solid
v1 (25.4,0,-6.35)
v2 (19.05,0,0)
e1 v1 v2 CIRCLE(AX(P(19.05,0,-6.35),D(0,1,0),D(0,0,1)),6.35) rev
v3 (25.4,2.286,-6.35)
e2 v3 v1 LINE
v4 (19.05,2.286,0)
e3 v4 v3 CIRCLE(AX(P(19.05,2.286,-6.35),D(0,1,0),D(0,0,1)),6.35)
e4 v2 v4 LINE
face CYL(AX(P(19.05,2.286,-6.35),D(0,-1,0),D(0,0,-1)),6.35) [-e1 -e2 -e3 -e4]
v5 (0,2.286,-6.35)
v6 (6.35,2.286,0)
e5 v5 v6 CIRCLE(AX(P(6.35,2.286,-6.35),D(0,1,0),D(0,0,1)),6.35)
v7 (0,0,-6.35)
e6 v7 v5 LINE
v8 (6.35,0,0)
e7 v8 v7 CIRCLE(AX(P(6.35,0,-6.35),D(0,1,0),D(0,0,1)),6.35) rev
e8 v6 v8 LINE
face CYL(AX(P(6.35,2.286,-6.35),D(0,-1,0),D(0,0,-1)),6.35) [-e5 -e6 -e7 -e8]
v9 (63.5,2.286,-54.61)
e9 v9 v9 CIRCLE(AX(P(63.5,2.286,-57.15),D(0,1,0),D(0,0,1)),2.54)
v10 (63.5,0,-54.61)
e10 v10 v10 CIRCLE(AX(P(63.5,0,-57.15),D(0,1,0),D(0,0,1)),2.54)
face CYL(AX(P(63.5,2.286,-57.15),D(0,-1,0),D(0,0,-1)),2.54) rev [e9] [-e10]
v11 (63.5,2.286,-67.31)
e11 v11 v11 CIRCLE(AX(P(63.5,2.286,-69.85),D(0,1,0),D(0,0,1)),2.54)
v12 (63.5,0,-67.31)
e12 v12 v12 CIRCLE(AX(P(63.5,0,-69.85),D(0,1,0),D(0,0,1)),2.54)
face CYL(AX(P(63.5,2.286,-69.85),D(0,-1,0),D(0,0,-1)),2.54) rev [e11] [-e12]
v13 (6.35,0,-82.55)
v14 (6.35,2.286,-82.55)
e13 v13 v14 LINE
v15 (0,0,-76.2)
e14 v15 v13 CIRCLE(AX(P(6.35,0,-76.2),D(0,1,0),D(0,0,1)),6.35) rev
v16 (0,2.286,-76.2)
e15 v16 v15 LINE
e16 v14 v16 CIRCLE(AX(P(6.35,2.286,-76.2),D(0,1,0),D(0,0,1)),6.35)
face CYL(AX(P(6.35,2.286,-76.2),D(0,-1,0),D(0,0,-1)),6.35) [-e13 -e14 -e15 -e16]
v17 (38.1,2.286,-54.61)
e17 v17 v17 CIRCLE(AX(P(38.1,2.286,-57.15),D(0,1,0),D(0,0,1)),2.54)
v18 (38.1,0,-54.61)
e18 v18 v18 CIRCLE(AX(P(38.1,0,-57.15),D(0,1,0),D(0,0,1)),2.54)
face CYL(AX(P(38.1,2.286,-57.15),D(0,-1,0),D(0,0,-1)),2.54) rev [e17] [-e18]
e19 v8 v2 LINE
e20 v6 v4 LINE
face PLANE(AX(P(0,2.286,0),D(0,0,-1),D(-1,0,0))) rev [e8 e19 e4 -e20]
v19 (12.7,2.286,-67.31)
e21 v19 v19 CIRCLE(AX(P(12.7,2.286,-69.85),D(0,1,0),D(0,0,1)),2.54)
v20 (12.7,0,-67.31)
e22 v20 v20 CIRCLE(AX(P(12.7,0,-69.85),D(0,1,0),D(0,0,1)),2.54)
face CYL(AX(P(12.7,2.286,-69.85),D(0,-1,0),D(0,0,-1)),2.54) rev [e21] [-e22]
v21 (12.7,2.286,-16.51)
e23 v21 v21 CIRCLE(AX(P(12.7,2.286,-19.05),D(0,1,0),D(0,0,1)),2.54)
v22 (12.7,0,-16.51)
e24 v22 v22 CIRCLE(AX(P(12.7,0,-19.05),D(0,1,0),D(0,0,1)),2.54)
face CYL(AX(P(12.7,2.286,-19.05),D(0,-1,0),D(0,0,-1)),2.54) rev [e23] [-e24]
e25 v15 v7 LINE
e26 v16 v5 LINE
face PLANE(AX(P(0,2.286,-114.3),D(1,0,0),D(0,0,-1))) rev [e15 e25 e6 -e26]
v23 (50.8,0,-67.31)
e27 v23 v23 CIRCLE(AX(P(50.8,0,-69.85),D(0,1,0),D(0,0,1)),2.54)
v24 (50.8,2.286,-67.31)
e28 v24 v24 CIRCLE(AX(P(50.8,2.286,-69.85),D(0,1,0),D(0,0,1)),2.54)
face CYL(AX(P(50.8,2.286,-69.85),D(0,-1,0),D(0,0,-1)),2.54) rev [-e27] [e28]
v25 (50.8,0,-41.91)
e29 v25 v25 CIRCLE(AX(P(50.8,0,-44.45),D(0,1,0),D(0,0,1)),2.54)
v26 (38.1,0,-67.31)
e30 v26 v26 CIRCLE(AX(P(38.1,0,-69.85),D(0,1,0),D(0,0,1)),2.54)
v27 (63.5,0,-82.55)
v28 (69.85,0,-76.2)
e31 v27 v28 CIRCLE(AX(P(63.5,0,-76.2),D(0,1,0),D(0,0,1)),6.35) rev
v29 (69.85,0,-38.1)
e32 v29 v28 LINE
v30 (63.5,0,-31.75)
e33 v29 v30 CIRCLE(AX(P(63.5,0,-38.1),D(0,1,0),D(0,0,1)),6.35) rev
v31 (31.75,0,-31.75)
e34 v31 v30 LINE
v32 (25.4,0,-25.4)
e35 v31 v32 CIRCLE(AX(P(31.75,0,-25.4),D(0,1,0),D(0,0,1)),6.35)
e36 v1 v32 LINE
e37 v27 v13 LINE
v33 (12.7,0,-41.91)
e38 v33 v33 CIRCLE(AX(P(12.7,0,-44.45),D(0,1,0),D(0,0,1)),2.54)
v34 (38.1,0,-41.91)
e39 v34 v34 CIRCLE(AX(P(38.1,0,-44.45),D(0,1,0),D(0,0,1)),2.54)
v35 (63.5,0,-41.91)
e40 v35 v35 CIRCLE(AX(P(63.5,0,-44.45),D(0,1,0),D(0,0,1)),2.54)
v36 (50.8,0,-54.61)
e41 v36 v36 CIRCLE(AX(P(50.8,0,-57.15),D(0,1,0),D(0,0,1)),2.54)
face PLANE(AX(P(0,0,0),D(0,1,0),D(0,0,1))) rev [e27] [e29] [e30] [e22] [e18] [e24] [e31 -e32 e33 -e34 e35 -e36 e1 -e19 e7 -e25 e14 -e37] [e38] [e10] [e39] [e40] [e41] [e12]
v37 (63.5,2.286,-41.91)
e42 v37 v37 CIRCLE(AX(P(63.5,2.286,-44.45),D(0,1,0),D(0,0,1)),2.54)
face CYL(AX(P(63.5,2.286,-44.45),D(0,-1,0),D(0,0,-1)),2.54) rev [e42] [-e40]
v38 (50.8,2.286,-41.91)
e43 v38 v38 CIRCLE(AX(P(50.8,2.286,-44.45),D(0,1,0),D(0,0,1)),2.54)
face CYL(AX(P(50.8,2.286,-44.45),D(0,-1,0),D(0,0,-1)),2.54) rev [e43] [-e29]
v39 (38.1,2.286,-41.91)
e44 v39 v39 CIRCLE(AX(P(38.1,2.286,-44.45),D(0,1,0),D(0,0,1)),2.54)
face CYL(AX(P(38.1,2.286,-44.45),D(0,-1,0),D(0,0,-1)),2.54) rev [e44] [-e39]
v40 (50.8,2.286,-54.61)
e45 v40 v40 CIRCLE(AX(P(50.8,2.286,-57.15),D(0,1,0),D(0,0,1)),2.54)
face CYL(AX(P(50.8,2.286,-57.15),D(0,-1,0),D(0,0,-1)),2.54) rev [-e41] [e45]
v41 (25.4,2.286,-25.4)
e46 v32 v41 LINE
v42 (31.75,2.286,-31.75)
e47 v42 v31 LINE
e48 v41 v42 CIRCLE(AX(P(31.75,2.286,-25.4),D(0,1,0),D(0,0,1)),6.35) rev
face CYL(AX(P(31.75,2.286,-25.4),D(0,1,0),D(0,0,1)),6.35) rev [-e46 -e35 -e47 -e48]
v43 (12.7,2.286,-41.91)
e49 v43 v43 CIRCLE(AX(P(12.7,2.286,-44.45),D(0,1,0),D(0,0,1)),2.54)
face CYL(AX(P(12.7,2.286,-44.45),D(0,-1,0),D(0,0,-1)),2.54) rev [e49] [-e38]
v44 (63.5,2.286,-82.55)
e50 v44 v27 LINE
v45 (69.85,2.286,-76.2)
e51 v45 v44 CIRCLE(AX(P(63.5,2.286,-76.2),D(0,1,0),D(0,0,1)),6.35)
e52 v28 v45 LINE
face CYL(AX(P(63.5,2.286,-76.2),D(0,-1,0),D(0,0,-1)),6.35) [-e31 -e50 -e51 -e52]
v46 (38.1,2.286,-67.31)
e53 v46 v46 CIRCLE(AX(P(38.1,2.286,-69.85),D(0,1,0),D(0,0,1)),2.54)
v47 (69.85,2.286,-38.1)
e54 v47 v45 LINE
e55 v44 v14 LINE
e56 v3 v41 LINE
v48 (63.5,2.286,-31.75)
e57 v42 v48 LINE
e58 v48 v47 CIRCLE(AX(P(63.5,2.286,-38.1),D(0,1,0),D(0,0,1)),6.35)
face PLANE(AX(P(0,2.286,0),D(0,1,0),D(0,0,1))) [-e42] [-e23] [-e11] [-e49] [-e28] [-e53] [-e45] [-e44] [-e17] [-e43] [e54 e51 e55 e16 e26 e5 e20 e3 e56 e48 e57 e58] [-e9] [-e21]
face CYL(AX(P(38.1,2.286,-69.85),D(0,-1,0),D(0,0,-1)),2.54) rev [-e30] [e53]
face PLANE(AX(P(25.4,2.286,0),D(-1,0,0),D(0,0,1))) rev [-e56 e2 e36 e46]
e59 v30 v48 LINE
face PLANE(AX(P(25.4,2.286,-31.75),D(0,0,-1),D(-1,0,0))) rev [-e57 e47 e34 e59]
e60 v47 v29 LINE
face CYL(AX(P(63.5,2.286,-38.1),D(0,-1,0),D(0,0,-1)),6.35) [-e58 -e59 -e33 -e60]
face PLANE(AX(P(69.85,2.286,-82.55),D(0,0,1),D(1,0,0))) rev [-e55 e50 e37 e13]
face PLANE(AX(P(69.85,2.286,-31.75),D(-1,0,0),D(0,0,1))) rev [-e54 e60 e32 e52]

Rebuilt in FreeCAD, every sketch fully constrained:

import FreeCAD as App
import Part
import Sketcher
from FreeCAD import Vector
Q = App.Units.Quantity


def edges_at(feature, points):
    """Names of the edges that pass closest to the given points."""
    edges = feature.Shape.Edges
    near = lambda p: min(range(len(edges)), key=lambda i: edges[i].distToShape(Part.Vertex(*p))[0])
    return sorted({f"Edge{near(p) + 1}" for p in points})

doc = App.newDocument("Part")
body = doc.addObject("PartDesign::Body", "Body")

sketch1 = body.newObject("Sketcher::SketchObject", "Sketch")
sketch1.AttachmentSupport = (doc.getObject("XZ_Plane"), [""])
sketch1.MapMode = "FlatFace"
sketch1.addGeometry(Part.LineSegment(Vector(25.4, -114.3, 0), Vector(0, -114.3, 0)), False)
sketch1.addGeometry(Part.LineSegment(Vector(0, -114.3, 0), Vector(0, 0, 0)), False)
sketch1.addGeometry(Part.LineSegment(Vector(0, 0, 0), Vector(25.4, 0, 0)), False)
sketch1.addGeometry(Part.LineSegment(Vector(25.4, 0, 0), Vector(25.4, -31.8, 0)), False)
sketch1.addGeometry(Part.LineSegment(Vector(25.4, -31.8, 0), Vector(69.8, -31.8, 0)), False)
sketch1.addGeometry(Part.LineSegment(Vector(69.8, -31.8, 0), Vector(69.8, -82.5, 0)), False)
sketch1.addGeometry(Part.LineSegment(Vector(69.8, -82.5, 0), Vector(25.4, -82.5, 0)), False)
sketch1.addGeometry(Part.LineSegment(Vector(25.4, -82.5, 0), Vector(25.4, -114.3, 0)), False)
sketch1.addGeometry(Part.Circle(Vector(12.7, -19.1, 0), Vector(0, 0, 1), 2.5), False)
sketch1.addGeometry(Part.Circle(Vector(12.7, -44.5, 0), Vector(0, 0, 1), 2.5), False)
sketch1.addGeometry(Part.Circle(Vector(38.1, -44.5, 0), Vector(0, 0, 1), 2.5), False)
sketch1.addGeometry(Part.Circle(Vector(50.8, -44.5, 0), Vector(0, 0, 1), 2.5), False)
sketch1.addGeometry(Part.Circle(Vector(38.1, -57.1, 0), Vector(0, 0, 1), 2.5), False)
sketch1.addGeometry(Part.Circle(Vector(50.8, -57.1, 0), Vector(0, 0, 1), 2.5), False)
sketch1.addGeometry(Part.Circle(Vector(63.5, -44.5, 0), Vector(0, 0, 1), 2.5), False)
sketch1.addGeometry(Part.Circle(Vector(63.5, -57.1, 0), Vector(0, 0, 1), 2.5), False)
sketch1.addGeometry(Part.Circle(Vector(12.7, -69.8, 0), Vector(0, 0, 1), 2.5), False)
sketch1.addGeometry(Part.Circle(Vector(12.7, -95.2, 0), Vector(0, 0, 1), 2.5), False)
sketch1.addGeometry(Part.Circle(Vector(38.1, -69.8, 0), Vector(0, 0, 1), 2.5), False)
sketch1.addGeometry(Part.Circle(Vector(50.8, -69.8, 0), Vector(0, 0, 1), 2.5), False)
sketch1.addGeometry(Part.Circle(Vector(63.5, -69.8, 0), Vector(0, 0, 1), 2.5), False)
sketch1.addConstraint(Sketcher.Constraint("Coincident", 0, 2, 1, 1))
sketch1.addConstraint(Sketcher.Constraint("Coincident", 1, 2, 2, 1))
sketch1.addConstraint(Sketcher.Constraint("Coincident", 2, 2, 3, 1))
sketch1.addConstraint(Sketcher.Constraint("Coincident", 3, 2, 4, 1))
sketch1.addConstraint(Sketcher.Constraint("Coincident", 4, 2, 5, 1))
sketch1.addConstraint(Sketcher.Constraint("Coincident", 5, 2, 6, 1))
sketch1.addConstraint(Sketcher.Constraint("Coincident", 6, 2, 7, 1))
sketch1.addConstraint(Sketcher.Constraint("Coincident", 7, 2, 0, 1))
sketch1.addConstraint(Sketcher.Constraint("Horizontal", 0))
sketch1.addConstraint(Sketcher.Constraint("Vertical", 1))
sketch1.addConstraint(Sketcher.Constraint("Horizontal", 2))
sketch1.addConstraint(Sketcher.Constraint("Vertical", 3))
sketch1.addConstraint(Sketcher.Constraint("Horizontal", 4))
sketch1.addConstraint(Sketcher.Constraint("Vertical", 5))
sketch1.addConstraint(Sketcher.Constraint("Horizontal", 6))
sketch1.addConstraint(Sketcher.Constraint("Vertical", 7))
sketch1.addConstraint(Sketcher.Constraint("Coincident", 1, 2, -1, 1))
sketch1.addConstraint(Sketcher.Constraint("Equal", 8, 9))
sketch1.addConstraint(Sketcher.Constraint("Equal", 9, 10))
sketch1.addConstraint(Sketcher.Constraint("Equal", 10, 11))
sketch1.addConstraint(Sketcher.Constraint("Equal", 11, 12))
sketch1.addConstraint(Sketcher.Constraint("Equal", 12, 13))
sketch1.addConstraint(Sketcher.Constraint("Equal", 13, 14))
sketch1.addConstraint(Sketcher.Constraint("Equal", 14, 15))
sketch1.addConstraint(Sketcher.Constraint("Equal", 15, 16))
sketch1.addConstraint(Sketcher.Constraint("Equal", 16, 17))
sketch1.addConstraint(Sketcher.Constraint("Equal", 17, 18))
sketch1.addConstraint(Sketcher.Constraint("Equal", 18, 19))
sketch1.addConstraint(Sketcher.Constraint("Equal", 19, 20))
sketch1.addConstraint(Sketcher.Constraint("Horizontal", 9, 3, 10, 3))
sketch1.addConstraint(Sketcher.Constraint("Horizontal", 10, 3, 11, 3))
sketch1.addConstraint(Sketcher.Constraint("Horizontal", 12, 3, 13, 3))
sketch1.addConstraint(Sketcher.Constraint("Horizontal", 11, 3, 14, 3))
sketch1.addConstraint(Sketcher.Constraint("Horizontal", 13, 3, 15, 3))
sketch1.addConstraint(Sketcher.Constraint("Horizontal", 16, 3, 18, 3))
sketch1.addConstraint(Sketcher.Constraint("Horizontal", 18, 3, 19, 3))
sketch1.addConstraint(Sketcher.Constraint("Horizontal", 19, 3, 20, 3))
sketch1.addConstraint(Sketcher.Constraint("Vertical", 8, 3, 9, 3))
sketch1.addConstraint(Sketcher.Constraint("Vertical", 10, 3, 12, 3))
sketch1.addConstraint(Sketcher.Constraint("Vertical", 11, 3, 13, 3))
sketch1.addConstraint(Sketcher.Constraint("Vertical", 14, 3, 15, 3))
sketch1.addConstraint(Sketcher.Constraint("Vertical", 9, 3, 16, 3))
sketch1.addConstraint(Sketcher.Constraint("Vertical", 16, 3, 17, 3))
sketch1.addConstraint(Sketcher.Constraint("Vertical", 12, 3, 18, 3))
sketch1.addConstraint(Sketcher.Constraint("Vertical", 13, 3, 19, 3))
sketch1.addConstraint(Sketcher.Constraint("Vertical", 15, 3, 20, 3))
sketch1.addConstraint(Sketcher.Constraint("Vertical", 3, 2, 6, 2))
sketch1.addConstraint(Sketcher.Constraint("Equal", 3, 7))
sketch1.addConstraint(Sketcher.Constraint("Diameter", 8, Q("0.2 in")))
sketch1.addConstraint(Sketcher.Constraint("DistanceX", 0, 2, 0, 1, Q("1 in")))
sketch1.addConstraint(Sketcher.Constraint("DistanceY", 5, 2, 5, 1, Q("2 in")))
sketch1.addConstraint(Sketcher.Constraint("DistanceY", 1, 1, 1, 2, Q("4.5 in")))
sketch1.addConstraint(Sketcher.Constraint("DistanceX", -1, 1, 11, 3, Q("2 in")))
sketch1.addConstraint(Sketcher.Constraint("DistanceY", 9, 3, 8, 3, Q("1 in")))
sketch1.addConstraint(Sketcher.Constraint("DistanceX", 9, 3, 10, 3, Q("1 in")))
sketch1.addConstraint(Sketcher.Constraint("DistanceX", 10, 3, 14, 3, Q("1 in")))
sketch1.addConstraint(Sketcher.Constraint("DistanceY", 16, 3, 9, 3, Q("1 in")))
sketch1.addConstraint(Sketcher.Constraint("DistanceY", 17, 3, 16, 3, Q("1 in")))
sketch1.addConstraint(Sketcher.Constraint("DistanceY", 12, 3, 3, 2, Q("1 in")))
sketch1.addConstraint(Sketcher.Constraint("DistanceX", 4, 1, 4, 2, Q("1.75 in")))
sketch1.addConstraint(Sketcher.Constraint("DistanceX", -1, 1, 8, 3, Q("0.5 in")))
sketch1.addConstraint(Sketcher.Constraint("DistanceY", 12, 3, 10, 3, Q("0.5 in")))
pad1 = body.newObject("PartDesign::Pad", "Pad")
pad1.Profile = sketch1
pad1.Length = Q("0.09 in")
pad1.Reversed = True

sketch2 = body.newObject("Sketcher::SketchObject", "Sketch001")
sketch2.AttachmentSupport = (doc.getObject("XZ_Plane"), [""])
sketch2.MapMode = "FlatFace"
sketch2.AttachmentOffset = App.Placement(Vector(0, 0, -0.09 * 25.4), App.Rotation())
sketch2.addGeometry(Part.LineSegment(Vector(0, -114, 0), Vector(0, -83, 0)), False)
sketch2.addGeometry(Part.LineSegment(Vector(0, -83, 0), Vector(25, -83, 0)), False)
sketch2.addGeometry(Part.LineSegment(Vector(25, -83, 0), Vector(25, -114, 0)), False)
sketch2.addGeometry(Part.LineSegment(Vector(25, -114, 0), Vector(0, -114, 0)), False)
sketch2.addConstraint(Sketcher.Constraint("Coincident", 0, 2, 1, 1))
sketch2.addConstraint(Sketcher.Constraint("Coincident", 1, 2, 2, 1))
sketch2.addConstraint(Sketcher.Constraint("Coincident", 2, 2, 3, 1))
sketch2.addConstraint(Sketcher.Constraint("Coincident", 3, 2, 0, 1))
sketch2.addConstraint(Sketcher.Constraint("Vertical", 0))
sketch2.addConstraint(Sketcher.Constraint("Horizontal", 1))
sketch2.addConstraint(Sketcher.Constraint("Vertical", 2))
sketch2.addConstraint(Sketcher.Constraint("Horizontal", 3))
sketch2.addConstraint(Sketcher.Constraint("PointOnObject", 0, 2, -2))
sketch2.addConstraint(Sketcher.Constraint("DistanceX", 1, 1, 1, 2, Q("1 in")))
sketch2.addConstraint(Sketcher.Constraint("DistanceY", 0, 1, 0, 2, Q("1.25 in")))
sketch2.addConstraint(Sketcher.Constraint("DistanceY", 2, 2, -1, 1, Q("4.5 in")))
pocket1 = body.newObject("PartDesign::Pocket", "Pocket")
pocket1.Profile = sketch2
pocket1.Length = Q("0.1 in")
pocket1.Reversed = True
doc.recompute()

fillet = body.newObject("PartDesign::Fillet", "Fillet")
fillet.Base = (pocket1, edges_at(pocket1, [
    (69.85, 1.143, -82.55),
    (69.85, 1.143, -31.75),
    (25.4, 1.143, -31.75),
    (25.4, 1.143, 0),
    (0, 1.143, 0),
    (0, 1.143, -82.55),
]))
fillet.Radius = Q("0.25 in")

doc.recompute()
